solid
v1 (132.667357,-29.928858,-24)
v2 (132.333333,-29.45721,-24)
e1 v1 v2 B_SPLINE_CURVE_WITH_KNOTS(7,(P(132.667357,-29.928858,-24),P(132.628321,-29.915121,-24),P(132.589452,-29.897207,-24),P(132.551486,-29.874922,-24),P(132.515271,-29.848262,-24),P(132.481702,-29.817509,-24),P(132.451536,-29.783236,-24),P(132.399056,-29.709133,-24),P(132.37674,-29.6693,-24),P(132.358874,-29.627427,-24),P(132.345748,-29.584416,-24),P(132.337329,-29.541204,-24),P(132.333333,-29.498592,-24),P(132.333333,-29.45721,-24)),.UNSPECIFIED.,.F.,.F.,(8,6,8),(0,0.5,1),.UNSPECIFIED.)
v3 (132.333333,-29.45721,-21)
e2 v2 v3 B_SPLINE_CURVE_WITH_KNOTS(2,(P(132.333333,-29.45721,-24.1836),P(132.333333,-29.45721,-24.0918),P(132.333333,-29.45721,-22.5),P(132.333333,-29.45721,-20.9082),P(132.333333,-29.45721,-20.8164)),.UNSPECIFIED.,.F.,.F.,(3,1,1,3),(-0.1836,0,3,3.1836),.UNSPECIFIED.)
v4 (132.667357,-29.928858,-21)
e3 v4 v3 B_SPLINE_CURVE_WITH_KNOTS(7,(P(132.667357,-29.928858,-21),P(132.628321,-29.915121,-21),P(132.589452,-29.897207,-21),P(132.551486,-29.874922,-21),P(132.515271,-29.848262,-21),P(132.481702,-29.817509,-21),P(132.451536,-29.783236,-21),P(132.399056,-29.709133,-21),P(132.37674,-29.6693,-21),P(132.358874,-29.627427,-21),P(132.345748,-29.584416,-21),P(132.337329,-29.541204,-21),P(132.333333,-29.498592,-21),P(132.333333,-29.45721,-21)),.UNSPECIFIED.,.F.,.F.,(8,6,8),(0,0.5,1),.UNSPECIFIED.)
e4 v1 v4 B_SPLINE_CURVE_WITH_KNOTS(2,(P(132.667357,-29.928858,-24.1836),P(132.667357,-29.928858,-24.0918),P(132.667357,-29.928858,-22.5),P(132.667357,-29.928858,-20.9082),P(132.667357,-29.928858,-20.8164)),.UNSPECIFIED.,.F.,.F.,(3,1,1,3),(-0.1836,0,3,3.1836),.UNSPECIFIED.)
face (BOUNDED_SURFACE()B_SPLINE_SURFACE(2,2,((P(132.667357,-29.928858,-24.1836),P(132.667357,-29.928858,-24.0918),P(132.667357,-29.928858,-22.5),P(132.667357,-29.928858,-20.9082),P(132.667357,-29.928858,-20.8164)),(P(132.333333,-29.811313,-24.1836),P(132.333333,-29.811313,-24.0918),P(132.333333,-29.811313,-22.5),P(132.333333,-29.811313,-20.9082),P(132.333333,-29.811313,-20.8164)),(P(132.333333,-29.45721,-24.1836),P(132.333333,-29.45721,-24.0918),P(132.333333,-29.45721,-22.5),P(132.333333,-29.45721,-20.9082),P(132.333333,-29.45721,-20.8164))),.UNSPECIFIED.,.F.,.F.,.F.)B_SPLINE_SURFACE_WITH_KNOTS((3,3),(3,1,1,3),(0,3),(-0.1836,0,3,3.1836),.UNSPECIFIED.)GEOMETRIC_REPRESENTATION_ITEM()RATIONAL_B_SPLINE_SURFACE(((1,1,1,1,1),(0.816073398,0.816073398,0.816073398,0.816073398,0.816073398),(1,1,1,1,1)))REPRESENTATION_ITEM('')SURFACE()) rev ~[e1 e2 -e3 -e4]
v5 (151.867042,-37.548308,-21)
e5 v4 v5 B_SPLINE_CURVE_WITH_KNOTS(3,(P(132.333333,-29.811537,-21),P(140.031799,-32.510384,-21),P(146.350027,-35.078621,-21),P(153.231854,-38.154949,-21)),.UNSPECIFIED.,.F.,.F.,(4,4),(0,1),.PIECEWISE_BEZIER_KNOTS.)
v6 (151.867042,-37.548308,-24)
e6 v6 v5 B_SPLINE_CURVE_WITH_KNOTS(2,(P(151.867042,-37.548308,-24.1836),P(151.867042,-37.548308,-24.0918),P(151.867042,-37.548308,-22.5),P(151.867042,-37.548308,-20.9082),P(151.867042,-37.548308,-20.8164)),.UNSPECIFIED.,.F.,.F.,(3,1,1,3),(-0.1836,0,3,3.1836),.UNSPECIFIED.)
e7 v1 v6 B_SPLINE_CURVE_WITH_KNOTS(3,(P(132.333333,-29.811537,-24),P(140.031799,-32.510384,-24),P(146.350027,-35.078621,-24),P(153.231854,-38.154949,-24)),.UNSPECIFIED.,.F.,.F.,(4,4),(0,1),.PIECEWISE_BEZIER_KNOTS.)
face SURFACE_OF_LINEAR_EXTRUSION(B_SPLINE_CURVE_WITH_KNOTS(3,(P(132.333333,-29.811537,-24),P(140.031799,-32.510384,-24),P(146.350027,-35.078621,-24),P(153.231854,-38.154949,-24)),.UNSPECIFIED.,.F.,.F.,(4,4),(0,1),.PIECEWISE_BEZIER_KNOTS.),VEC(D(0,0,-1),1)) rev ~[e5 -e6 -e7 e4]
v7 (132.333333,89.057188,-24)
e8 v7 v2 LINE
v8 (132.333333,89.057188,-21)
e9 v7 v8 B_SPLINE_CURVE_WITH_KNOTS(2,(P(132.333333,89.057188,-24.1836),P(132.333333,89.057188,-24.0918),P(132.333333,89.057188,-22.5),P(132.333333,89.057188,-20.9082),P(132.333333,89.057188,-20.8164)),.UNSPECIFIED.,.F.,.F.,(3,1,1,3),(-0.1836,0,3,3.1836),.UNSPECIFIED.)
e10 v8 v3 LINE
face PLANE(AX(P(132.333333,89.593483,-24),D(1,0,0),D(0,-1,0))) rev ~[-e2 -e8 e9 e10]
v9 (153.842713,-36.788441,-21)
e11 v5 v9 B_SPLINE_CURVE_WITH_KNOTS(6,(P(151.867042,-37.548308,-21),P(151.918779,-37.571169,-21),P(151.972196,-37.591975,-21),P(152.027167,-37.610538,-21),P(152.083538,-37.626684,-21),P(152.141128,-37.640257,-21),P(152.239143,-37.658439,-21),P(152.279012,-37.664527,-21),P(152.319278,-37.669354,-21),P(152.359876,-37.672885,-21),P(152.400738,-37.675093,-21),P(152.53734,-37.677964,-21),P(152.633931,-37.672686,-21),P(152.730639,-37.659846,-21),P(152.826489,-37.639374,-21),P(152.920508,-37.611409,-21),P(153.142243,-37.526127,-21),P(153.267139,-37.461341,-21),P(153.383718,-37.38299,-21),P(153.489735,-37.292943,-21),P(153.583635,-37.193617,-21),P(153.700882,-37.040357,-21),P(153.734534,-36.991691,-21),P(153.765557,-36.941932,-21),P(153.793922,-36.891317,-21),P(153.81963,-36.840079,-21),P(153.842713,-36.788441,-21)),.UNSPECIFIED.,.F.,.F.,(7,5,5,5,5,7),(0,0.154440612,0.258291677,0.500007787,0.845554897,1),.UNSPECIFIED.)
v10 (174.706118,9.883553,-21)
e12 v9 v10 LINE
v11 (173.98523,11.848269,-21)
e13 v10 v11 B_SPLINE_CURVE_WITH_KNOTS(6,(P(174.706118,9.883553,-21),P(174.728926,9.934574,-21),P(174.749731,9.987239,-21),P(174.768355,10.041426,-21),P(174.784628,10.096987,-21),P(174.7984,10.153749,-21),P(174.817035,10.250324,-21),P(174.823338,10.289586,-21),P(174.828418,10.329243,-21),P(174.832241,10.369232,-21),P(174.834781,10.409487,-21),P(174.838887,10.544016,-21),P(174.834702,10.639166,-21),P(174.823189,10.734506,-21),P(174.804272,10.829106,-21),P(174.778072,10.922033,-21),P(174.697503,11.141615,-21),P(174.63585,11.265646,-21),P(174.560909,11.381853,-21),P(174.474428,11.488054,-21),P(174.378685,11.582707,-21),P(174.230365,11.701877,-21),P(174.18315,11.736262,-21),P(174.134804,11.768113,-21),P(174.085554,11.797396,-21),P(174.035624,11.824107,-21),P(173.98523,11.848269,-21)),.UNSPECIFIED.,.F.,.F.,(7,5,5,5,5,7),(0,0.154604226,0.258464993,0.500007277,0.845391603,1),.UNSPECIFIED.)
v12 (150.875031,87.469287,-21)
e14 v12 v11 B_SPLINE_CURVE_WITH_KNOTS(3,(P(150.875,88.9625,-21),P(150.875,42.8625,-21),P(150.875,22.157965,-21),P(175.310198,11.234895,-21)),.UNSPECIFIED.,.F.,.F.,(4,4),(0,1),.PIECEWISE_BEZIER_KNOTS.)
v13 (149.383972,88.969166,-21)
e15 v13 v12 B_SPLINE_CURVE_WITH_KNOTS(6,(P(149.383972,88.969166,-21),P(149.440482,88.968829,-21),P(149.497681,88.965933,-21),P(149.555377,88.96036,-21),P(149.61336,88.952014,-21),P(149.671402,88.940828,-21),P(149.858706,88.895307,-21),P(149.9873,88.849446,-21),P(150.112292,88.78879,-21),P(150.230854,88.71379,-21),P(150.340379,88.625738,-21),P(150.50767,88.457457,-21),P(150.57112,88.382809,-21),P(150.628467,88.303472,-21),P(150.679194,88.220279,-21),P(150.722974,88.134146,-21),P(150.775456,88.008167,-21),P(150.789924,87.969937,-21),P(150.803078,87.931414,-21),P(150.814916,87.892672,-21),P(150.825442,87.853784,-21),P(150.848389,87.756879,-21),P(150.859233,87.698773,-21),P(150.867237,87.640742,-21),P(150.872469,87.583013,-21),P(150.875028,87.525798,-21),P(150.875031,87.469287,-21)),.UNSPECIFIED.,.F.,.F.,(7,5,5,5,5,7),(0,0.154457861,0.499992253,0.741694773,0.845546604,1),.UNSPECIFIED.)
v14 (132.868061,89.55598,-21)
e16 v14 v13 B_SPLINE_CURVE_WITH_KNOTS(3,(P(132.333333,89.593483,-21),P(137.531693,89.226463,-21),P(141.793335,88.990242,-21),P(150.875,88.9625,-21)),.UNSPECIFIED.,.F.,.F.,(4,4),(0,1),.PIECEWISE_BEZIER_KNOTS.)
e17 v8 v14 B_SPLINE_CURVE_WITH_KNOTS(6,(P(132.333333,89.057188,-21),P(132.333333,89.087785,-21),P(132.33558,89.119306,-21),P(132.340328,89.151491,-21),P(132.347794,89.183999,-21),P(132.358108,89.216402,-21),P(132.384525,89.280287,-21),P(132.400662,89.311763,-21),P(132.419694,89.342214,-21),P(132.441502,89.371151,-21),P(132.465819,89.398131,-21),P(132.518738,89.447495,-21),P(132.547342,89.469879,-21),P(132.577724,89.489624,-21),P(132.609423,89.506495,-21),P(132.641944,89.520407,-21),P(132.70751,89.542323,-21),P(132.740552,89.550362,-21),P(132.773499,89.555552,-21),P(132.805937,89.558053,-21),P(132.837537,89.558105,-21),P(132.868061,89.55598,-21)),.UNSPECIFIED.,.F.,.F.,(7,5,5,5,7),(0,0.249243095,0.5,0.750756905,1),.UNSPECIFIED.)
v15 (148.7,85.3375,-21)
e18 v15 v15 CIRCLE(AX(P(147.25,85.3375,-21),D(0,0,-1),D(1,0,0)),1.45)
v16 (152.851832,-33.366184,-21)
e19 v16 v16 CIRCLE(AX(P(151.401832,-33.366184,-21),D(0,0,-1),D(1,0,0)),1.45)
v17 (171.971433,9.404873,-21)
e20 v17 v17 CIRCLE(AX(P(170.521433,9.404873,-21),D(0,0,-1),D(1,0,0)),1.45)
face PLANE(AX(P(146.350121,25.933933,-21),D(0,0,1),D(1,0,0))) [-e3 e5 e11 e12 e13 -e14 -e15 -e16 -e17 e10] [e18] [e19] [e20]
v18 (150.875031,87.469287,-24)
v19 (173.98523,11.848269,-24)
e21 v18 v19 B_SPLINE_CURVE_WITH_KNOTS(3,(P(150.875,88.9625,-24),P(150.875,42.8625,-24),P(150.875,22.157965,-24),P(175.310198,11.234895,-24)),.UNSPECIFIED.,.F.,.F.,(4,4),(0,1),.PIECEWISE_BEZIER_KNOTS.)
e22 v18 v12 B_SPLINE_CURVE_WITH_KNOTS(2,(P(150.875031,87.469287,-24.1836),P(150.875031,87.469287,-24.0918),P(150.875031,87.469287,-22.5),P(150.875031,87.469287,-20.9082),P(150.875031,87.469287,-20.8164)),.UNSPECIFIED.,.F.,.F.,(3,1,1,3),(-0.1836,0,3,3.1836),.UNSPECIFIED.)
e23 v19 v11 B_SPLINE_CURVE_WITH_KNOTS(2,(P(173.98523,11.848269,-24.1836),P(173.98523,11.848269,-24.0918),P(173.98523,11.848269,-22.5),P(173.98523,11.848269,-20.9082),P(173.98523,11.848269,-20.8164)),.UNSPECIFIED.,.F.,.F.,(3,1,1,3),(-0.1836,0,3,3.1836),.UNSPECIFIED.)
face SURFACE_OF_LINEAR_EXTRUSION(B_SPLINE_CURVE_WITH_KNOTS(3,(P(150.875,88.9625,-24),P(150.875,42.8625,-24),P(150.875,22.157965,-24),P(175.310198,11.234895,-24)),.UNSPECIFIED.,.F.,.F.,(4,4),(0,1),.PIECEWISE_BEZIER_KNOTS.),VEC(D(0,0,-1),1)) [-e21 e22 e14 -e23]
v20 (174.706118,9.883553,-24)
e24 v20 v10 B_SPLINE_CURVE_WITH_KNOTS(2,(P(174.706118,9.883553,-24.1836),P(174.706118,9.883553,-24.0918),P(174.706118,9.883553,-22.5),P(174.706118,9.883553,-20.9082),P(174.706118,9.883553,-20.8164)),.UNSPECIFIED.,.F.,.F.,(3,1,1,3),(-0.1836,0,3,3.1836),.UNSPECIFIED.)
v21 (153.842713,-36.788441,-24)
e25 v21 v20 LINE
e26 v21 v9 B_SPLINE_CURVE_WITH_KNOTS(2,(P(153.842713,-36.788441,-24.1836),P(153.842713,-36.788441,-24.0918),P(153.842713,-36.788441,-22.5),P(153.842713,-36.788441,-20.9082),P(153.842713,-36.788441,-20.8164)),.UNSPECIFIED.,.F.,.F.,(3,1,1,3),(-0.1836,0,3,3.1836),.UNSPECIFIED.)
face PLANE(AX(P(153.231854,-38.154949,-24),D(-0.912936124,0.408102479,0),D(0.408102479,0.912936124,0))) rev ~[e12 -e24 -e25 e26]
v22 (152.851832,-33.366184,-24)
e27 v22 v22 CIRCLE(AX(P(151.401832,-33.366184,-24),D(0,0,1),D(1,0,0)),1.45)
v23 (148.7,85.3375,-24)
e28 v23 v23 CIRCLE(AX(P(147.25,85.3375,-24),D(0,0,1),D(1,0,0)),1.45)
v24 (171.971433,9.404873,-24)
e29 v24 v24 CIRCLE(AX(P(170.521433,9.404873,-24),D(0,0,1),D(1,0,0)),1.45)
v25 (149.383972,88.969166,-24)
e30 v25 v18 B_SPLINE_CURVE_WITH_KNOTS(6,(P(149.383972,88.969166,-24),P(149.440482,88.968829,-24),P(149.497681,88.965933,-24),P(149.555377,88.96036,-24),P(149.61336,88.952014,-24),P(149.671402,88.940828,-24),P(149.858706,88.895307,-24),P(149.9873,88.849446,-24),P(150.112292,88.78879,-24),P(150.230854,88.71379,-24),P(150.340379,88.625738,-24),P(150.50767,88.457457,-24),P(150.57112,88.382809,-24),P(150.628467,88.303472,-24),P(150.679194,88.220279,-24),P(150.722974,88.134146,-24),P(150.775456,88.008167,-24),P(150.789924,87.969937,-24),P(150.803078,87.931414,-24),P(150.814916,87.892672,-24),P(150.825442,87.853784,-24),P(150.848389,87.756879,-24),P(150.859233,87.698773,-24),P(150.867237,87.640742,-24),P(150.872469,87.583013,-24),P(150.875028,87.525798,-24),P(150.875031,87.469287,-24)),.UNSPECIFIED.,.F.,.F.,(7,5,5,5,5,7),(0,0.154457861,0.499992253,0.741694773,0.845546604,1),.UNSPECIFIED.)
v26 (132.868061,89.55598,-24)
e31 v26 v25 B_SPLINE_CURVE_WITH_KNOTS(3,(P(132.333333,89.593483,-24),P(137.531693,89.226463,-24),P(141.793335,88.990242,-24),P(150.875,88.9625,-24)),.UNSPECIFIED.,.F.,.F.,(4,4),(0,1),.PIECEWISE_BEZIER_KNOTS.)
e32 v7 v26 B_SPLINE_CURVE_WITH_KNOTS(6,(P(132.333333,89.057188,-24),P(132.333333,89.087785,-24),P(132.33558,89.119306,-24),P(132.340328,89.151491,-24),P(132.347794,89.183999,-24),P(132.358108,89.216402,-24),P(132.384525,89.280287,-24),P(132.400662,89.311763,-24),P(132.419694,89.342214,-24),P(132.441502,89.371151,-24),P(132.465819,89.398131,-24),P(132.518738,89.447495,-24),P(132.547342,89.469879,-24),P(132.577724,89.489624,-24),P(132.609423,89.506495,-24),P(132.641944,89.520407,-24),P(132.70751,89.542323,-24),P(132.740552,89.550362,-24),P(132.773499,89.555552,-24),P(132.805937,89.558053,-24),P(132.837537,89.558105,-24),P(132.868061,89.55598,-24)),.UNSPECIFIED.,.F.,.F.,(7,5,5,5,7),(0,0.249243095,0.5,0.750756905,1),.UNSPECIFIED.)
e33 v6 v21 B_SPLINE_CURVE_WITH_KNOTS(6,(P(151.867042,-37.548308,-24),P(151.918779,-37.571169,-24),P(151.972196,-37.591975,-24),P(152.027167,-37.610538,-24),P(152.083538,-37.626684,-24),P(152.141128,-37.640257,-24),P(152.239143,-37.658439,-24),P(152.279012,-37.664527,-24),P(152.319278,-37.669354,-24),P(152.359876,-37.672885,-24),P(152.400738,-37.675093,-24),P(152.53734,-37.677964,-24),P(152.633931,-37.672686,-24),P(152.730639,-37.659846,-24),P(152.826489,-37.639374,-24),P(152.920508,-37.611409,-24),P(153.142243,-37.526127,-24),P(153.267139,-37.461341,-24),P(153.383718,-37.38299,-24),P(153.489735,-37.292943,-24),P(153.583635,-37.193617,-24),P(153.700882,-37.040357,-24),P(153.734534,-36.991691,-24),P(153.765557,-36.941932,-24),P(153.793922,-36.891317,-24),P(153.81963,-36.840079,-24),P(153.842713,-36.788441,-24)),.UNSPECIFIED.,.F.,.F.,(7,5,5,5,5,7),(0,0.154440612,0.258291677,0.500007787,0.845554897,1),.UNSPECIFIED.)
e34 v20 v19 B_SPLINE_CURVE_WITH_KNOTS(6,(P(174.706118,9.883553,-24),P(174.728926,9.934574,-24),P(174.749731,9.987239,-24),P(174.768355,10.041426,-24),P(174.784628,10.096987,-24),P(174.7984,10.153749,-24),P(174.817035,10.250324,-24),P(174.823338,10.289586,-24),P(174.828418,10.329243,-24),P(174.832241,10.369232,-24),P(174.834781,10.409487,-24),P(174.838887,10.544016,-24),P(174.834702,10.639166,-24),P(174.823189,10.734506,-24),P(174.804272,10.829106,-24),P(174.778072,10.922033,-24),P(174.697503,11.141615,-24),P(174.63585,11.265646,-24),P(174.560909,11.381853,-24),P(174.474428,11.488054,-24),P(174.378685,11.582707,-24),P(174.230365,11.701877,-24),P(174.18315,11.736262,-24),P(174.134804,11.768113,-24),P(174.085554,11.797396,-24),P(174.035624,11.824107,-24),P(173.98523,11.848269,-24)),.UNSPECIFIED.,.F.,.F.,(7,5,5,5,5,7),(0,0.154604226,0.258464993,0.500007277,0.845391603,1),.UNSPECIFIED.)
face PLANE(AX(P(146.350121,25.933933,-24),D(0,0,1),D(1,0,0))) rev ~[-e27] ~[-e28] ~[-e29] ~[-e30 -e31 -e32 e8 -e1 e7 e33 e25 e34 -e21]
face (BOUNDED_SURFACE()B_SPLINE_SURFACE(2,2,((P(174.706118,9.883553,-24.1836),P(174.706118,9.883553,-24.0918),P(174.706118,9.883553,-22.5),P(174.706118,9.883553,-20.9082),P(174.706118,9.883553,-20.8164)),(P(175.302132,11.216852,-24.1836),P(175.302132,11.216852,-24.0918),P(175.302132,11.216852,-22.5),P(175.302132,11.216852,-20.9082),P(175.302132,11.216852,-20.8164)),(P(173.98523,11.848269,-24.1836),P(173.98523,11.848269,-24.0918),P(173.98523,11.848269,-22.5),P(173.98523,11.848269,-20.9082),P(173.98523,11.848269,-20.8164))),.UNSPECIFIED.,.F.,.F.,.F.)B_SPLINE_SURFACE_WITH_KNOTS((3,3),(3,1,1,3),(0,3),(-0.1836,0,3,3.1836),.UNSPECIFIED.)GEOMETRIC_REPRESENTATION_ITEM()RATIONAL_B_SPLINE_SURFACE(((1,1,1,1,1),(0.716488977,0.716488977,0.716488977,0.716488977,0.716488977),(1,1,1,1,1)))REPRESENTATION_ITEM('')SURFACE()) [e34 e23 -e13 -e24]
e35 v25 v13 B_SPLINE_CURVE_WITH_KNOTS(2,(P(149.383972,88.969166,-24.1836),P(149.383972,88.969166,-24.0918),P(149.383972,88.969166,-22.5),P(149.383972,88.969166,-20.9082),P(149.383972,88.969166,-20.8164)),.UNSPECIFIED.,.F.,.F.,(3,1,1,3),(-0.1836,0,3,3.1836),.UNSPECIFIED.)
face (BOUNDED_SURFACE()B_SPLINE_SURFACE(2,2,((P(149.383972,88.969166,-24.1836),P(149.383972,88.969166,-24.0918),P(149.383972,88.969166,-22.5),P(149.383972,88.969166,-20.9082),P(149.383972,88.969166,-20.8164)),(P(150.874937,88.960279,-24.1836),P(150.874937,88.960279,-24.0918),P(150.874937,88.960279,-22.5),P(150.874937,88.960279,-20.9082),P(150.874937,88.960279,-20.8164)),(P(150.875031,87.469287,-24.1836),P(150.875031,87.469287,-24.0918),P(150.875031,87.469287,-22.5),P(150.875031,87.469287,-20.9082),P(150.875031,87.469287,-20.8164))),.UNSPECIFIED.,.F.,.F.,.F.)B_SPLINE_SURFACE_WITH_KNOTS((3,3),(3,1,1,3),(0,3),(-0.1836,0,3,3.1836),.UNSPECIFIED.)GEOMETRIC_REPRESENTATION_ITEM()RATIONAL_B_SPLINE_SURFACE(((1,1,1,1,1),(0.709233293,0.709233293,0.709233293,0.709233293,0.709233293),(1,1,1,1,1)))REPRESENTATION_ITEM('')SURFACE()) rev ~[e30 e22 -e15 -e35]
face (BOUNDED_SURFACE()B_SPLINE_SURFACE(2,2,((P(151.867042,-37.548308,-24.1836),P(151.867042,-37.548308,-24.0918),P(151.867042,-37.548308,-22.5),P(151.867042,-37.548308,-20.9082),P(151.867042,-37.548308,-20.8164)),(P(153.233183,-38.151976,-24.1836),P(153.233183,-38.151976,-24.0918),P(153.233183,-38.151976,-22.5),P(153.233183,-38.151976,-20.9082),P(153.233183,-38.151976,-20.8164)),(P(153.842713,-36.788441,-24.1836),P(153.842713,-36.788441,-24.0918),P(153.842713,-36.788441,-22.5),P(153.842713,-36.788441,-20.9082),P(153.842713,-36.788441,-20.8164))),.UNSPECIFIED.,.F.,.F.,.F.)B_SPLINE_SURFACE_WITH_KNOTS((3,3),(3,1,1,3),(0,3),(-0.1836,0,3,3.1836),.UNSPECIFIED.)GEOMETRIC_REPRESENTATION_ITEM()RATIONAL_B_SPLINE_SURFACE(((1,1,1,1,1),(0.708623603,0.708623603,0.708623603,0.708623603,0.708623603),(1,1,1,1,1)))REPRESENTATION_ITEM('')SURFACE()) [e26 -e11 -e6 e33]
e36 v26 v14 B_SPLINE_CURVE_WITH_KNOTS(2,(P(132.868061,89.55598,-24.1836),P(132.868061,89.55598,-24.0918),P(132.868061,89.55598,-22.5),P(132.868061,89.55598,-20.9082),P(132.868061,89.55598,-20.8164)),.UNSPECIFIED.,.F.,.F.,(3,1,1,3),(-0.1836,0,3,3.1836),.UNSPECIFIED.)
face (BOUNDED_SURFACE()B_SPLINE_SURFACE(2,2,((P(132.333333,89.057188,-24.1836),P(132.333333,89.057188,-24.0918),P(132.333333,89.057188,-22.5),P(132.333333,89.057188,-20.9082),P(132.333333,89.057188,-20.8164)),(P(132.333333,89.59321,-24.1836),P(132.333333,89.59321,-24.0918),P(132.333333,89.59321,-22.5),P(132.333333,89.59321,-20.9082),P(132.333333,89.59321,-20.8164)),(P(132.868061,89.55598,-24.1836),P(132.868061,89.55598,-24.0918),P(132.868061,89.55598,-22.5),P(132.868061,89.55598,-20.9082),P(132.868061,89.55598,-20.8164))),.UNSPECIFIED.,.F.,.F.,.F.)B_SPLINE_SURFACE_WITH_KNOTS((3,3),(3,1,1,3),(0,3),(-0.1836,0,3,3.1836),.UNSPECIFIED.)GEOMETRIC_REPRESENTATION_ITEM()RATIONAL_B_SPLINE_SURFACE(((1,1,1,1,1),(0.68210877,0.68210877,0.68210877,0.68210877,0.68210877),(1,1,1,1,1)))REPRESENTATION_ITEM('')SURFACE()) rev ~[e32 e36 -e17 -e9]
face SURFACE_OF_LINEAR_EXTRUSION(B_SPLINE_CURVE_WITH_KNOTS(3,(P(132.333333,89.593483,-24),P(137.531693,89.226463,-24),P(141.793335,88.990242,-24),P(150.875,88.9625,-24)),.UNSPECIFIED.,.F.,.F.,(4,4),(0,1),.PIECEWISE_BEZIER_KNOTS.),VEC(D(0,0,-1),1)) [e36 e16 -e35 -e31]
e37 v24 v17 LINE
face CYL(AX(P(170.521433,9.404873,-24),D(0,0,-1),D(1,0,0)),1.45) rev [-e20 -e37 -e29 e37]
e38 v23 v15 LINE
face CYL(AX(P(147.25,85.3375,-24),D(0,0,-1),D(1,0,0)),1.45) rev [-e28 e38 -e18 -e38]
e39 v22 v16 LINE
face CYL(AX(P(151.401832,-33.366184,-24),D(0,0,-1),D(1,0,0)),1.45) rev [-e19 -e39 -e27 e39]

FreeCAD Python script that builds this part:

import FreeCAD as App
import Part
import Sketcher
from FreeCAD import Vector
Q = App.Units.Quantity


def edges_at(feature, points):
    """Names of the edges that pass closest to the given points."""
    edges = feature.Shape.Edges
    near = lambda p: min(range(len(edges)), key=lambda i: edges[i].distToShape(Part.Vertex(*p))[0])
    return sorted({f"Edge{near(p) + 1}" for p in points})

doc = App.newDocument("Part")
body = doc.addObject("PartDesign::Body", "Body")

sketch1 = body.newObject("Sketcher::SketchObject", "Sketch")
sketch1.AttachmentSupport = (doc.getObject("XY_Plane"), [""])
sketch1.MapMode = "FlatFace"
sketch1.addGeometry([
    Part.BSplineCurve([Vector(132.333333, -29.811537, 0), Vector(140.031799, -32.510384, 0), Vector(146.350027, -35.078621, 0), Vector(153.231854, -38.154949, 0)], [4, 4], [0, 1], False, 3, [1, 1, 1, 1], False),
    Part.LineSegment(Vector(153.231854, -38.154949, 0), Vector(175.310198, 11.234895, 0)),
    Part.BSplineCurve([Vector(150.875, 88.9625, 0), Vector(150.875, 42.8625, 0), Vector(150.875, 22.157965, 0), Vector(175.310198, 11.234895, 0)], [4, 4], [0, 1], False, 3, [1, 1, 1, 1], False),
    Part.BSplineCurve([Vector(132.333333, 89.593483, 0), Vector(137.531693, 89.226463, 0), Vector(141.793335, 88.990242, 0), Vector(150.875, 88.9625, 0)], [4, 4], [0, 1], False, 3, [1, 1, 1, 1], False),
    Part.LineSegment(Vector(132.333333, 89.593483, 0), Vector(132.333333, -29.811537, 0)),
], False)
sketch1.addConstraint([
    Sketcher.Constraint("Block", 0),
    Sketcher.Constraint("Block", 2),
    Sketcher.Constraint("Block", 3),
    Sketcher.Constraint("Coincident", 0, 2, 1, 1),
    Sketcher.Constraint("Coincident", 1, 2, 2, 2),
    Sketcher.Constraint("Coincident", 3, 1, 4, 1),
    Sketcher.Constraint("Coincident", 4, 2, 0, 1),
])
pad1 = body.newObject("PartDesign::Pad", "Pad")
pad1.Profile = sketch1
pad1.Length = 3

sketch2 = body.newObject("Sketcher::SketchObject", "Sketch001")
sketch2.AttachmentSupport = (doc.getObject("XY_Plane"), [""])
sketch2.MapMode = "FlatFace"
sketch2.addGeometry([
    Part.Circle(Vector(-4.4, -4.4, 0), Vector(0, 0, 1), 1.4),
    Part.Circle(Vector(-4.4, 80.6, 0), Vector(0, 0, 1), 1.4),
    Part.Circle(Vector(151.4, -33.4, 0), Vector(0, 0, 1), 1.4),
    Part.Circle(Vector(170.5, 9.4, 0), Vector(0, 0, 1), 1.4),
    Part.Circle(Vector(147.2, 85.3, 0), Vector(0, 0, 1), 1.4),
    Part.Circle(Vector(43.2, -13.9, 0), Vector(0, 0, 1), 1.4),
    Part.Circle(Vector(57.1, 92.1, 0), Vector(0, 0, 1), 1.4),
    Part.Circle(Vector(95.2, 92.1, 0), Vector(0, 0, 1), 1.4),
    Part.Circle(Vector(95.2, -13.9, 0), Vector(0, 0, 1), 1.4),
], False)
sketch2.addConstraint([
    Sketcher.Constraint("Equal", 0, 1),
    Sketcher.Constraint("Equal", 1, 2),
    Sketcher.Constraint("Equal", 2, 3),
    Sketcher.Constraint("Equal", 3, 4),
    Sketcher.Constraint("Equal", 4, 5),
    Sketcher.Constraint("Equal", 5, 6),
    Sketcher.Constraint("Equal", 6, 7),
    Sketcher.Constraint("Equal", 7, 8),
    Sketcher.Constraint("Horizontal", 6, 3, 7, 3),
    Sketcher.Constraint("Horizontal", 5, 3, 8, 3),
    Sketcher.Constraint("Vertical", 0, 3, 1, 3),
    Sketcher.Constraint("Vertical", 7, 3, 8, 3),
    Sketcher.Constraint("Diameter", 0, Q("2.9 mm")),
    Sketcher.Constraint("DistanceX", 5, 3, 4, 3, Q("104 mm")),
    Sketcher.Constraint("DistanceX", 7, 3, 4, 3, Q("52 mm")),
    Sketcher.Constraint("DistanceY", 5, 3, -1, 1, Q("13.9 mm")),
    Sketcher.Constraint("DistanceX", 6, 3, 4, 3, Q("90.1 mm")),
    Sketcher.Constraint("DistanceX", -1, 1, 4, 3, Q("147.25 mm")),
    Sketcher.Constraint("DistanceY", 0, 3, 1, 3, Q("84.95 mm")),
    Sketcher.Constraint("DistanceY", 1, 3, 6, 3, Q("11.51 mm")),
    Sketcher.Constraint("DistanceX", 0, 3, -1, 1, Q("4.375 mm")),
    Sketcher.Constraint("DistanceY", 0, 3, -1, 1, Q("4.375 mm")),
    Sketcher.Constraint("DistanceY", -1, 1, 4, 3, Q("85.3375 mm")),
    Sketcher.Constraint("DistanceX", 2, 3, 3, 3, Q("19.119601 mm")),
    Sketcher.Constraint("DistanceX", -1, 1, 2, 3, Q("151.401832 mm")),
    Sketcher.Constraint("DistanceY", 2, 3, -1, 1, Q("33.366184 mm")),
    Sketcher.Constraint("DistanceY", -1, 1, 3, 3, Q("9.404873 mm")),
])
pocket1 = body.newObject("PartDesign::Pocket", "Pocket")
pocket1.Profile = sketch2
pocket1.Length = 27
pocket1.Reversed = True
doc.recompute()

fillet = body.newObject("PartDesign::Fillet", "Fillet")
fillet.Base = (pocket1, edges_at(pocket1, [(175.31, 11.235, 1.5), (150.875, 88.963, 1.5), (153.232, -38.155, 1.5)]))
fillet.Radius = 1.5
doc.recompute()

fillet2 = body.newObject("PartDesign::Fillet", "Fillet001")
fillet2.Base = (fillet, edges_at(fillet, [(132.333, 89.593, 1.5), (132.333, -29.812, 1.5)]))
fillet2.Radius = 0.5
body2 = doc.addObject("PartDesign::Body", "Body001")
doc.recompute()

body.Placement = App.Placement(Vector(0, 0, -24), App.Rotation(Vector(0, 0, 1), 0))
boolean = body2.newObject("PartDesign::Boolean", "Boolean")
boolean.Type = "Fuse"
boolean.addObjects([body])

doc.recompute()
